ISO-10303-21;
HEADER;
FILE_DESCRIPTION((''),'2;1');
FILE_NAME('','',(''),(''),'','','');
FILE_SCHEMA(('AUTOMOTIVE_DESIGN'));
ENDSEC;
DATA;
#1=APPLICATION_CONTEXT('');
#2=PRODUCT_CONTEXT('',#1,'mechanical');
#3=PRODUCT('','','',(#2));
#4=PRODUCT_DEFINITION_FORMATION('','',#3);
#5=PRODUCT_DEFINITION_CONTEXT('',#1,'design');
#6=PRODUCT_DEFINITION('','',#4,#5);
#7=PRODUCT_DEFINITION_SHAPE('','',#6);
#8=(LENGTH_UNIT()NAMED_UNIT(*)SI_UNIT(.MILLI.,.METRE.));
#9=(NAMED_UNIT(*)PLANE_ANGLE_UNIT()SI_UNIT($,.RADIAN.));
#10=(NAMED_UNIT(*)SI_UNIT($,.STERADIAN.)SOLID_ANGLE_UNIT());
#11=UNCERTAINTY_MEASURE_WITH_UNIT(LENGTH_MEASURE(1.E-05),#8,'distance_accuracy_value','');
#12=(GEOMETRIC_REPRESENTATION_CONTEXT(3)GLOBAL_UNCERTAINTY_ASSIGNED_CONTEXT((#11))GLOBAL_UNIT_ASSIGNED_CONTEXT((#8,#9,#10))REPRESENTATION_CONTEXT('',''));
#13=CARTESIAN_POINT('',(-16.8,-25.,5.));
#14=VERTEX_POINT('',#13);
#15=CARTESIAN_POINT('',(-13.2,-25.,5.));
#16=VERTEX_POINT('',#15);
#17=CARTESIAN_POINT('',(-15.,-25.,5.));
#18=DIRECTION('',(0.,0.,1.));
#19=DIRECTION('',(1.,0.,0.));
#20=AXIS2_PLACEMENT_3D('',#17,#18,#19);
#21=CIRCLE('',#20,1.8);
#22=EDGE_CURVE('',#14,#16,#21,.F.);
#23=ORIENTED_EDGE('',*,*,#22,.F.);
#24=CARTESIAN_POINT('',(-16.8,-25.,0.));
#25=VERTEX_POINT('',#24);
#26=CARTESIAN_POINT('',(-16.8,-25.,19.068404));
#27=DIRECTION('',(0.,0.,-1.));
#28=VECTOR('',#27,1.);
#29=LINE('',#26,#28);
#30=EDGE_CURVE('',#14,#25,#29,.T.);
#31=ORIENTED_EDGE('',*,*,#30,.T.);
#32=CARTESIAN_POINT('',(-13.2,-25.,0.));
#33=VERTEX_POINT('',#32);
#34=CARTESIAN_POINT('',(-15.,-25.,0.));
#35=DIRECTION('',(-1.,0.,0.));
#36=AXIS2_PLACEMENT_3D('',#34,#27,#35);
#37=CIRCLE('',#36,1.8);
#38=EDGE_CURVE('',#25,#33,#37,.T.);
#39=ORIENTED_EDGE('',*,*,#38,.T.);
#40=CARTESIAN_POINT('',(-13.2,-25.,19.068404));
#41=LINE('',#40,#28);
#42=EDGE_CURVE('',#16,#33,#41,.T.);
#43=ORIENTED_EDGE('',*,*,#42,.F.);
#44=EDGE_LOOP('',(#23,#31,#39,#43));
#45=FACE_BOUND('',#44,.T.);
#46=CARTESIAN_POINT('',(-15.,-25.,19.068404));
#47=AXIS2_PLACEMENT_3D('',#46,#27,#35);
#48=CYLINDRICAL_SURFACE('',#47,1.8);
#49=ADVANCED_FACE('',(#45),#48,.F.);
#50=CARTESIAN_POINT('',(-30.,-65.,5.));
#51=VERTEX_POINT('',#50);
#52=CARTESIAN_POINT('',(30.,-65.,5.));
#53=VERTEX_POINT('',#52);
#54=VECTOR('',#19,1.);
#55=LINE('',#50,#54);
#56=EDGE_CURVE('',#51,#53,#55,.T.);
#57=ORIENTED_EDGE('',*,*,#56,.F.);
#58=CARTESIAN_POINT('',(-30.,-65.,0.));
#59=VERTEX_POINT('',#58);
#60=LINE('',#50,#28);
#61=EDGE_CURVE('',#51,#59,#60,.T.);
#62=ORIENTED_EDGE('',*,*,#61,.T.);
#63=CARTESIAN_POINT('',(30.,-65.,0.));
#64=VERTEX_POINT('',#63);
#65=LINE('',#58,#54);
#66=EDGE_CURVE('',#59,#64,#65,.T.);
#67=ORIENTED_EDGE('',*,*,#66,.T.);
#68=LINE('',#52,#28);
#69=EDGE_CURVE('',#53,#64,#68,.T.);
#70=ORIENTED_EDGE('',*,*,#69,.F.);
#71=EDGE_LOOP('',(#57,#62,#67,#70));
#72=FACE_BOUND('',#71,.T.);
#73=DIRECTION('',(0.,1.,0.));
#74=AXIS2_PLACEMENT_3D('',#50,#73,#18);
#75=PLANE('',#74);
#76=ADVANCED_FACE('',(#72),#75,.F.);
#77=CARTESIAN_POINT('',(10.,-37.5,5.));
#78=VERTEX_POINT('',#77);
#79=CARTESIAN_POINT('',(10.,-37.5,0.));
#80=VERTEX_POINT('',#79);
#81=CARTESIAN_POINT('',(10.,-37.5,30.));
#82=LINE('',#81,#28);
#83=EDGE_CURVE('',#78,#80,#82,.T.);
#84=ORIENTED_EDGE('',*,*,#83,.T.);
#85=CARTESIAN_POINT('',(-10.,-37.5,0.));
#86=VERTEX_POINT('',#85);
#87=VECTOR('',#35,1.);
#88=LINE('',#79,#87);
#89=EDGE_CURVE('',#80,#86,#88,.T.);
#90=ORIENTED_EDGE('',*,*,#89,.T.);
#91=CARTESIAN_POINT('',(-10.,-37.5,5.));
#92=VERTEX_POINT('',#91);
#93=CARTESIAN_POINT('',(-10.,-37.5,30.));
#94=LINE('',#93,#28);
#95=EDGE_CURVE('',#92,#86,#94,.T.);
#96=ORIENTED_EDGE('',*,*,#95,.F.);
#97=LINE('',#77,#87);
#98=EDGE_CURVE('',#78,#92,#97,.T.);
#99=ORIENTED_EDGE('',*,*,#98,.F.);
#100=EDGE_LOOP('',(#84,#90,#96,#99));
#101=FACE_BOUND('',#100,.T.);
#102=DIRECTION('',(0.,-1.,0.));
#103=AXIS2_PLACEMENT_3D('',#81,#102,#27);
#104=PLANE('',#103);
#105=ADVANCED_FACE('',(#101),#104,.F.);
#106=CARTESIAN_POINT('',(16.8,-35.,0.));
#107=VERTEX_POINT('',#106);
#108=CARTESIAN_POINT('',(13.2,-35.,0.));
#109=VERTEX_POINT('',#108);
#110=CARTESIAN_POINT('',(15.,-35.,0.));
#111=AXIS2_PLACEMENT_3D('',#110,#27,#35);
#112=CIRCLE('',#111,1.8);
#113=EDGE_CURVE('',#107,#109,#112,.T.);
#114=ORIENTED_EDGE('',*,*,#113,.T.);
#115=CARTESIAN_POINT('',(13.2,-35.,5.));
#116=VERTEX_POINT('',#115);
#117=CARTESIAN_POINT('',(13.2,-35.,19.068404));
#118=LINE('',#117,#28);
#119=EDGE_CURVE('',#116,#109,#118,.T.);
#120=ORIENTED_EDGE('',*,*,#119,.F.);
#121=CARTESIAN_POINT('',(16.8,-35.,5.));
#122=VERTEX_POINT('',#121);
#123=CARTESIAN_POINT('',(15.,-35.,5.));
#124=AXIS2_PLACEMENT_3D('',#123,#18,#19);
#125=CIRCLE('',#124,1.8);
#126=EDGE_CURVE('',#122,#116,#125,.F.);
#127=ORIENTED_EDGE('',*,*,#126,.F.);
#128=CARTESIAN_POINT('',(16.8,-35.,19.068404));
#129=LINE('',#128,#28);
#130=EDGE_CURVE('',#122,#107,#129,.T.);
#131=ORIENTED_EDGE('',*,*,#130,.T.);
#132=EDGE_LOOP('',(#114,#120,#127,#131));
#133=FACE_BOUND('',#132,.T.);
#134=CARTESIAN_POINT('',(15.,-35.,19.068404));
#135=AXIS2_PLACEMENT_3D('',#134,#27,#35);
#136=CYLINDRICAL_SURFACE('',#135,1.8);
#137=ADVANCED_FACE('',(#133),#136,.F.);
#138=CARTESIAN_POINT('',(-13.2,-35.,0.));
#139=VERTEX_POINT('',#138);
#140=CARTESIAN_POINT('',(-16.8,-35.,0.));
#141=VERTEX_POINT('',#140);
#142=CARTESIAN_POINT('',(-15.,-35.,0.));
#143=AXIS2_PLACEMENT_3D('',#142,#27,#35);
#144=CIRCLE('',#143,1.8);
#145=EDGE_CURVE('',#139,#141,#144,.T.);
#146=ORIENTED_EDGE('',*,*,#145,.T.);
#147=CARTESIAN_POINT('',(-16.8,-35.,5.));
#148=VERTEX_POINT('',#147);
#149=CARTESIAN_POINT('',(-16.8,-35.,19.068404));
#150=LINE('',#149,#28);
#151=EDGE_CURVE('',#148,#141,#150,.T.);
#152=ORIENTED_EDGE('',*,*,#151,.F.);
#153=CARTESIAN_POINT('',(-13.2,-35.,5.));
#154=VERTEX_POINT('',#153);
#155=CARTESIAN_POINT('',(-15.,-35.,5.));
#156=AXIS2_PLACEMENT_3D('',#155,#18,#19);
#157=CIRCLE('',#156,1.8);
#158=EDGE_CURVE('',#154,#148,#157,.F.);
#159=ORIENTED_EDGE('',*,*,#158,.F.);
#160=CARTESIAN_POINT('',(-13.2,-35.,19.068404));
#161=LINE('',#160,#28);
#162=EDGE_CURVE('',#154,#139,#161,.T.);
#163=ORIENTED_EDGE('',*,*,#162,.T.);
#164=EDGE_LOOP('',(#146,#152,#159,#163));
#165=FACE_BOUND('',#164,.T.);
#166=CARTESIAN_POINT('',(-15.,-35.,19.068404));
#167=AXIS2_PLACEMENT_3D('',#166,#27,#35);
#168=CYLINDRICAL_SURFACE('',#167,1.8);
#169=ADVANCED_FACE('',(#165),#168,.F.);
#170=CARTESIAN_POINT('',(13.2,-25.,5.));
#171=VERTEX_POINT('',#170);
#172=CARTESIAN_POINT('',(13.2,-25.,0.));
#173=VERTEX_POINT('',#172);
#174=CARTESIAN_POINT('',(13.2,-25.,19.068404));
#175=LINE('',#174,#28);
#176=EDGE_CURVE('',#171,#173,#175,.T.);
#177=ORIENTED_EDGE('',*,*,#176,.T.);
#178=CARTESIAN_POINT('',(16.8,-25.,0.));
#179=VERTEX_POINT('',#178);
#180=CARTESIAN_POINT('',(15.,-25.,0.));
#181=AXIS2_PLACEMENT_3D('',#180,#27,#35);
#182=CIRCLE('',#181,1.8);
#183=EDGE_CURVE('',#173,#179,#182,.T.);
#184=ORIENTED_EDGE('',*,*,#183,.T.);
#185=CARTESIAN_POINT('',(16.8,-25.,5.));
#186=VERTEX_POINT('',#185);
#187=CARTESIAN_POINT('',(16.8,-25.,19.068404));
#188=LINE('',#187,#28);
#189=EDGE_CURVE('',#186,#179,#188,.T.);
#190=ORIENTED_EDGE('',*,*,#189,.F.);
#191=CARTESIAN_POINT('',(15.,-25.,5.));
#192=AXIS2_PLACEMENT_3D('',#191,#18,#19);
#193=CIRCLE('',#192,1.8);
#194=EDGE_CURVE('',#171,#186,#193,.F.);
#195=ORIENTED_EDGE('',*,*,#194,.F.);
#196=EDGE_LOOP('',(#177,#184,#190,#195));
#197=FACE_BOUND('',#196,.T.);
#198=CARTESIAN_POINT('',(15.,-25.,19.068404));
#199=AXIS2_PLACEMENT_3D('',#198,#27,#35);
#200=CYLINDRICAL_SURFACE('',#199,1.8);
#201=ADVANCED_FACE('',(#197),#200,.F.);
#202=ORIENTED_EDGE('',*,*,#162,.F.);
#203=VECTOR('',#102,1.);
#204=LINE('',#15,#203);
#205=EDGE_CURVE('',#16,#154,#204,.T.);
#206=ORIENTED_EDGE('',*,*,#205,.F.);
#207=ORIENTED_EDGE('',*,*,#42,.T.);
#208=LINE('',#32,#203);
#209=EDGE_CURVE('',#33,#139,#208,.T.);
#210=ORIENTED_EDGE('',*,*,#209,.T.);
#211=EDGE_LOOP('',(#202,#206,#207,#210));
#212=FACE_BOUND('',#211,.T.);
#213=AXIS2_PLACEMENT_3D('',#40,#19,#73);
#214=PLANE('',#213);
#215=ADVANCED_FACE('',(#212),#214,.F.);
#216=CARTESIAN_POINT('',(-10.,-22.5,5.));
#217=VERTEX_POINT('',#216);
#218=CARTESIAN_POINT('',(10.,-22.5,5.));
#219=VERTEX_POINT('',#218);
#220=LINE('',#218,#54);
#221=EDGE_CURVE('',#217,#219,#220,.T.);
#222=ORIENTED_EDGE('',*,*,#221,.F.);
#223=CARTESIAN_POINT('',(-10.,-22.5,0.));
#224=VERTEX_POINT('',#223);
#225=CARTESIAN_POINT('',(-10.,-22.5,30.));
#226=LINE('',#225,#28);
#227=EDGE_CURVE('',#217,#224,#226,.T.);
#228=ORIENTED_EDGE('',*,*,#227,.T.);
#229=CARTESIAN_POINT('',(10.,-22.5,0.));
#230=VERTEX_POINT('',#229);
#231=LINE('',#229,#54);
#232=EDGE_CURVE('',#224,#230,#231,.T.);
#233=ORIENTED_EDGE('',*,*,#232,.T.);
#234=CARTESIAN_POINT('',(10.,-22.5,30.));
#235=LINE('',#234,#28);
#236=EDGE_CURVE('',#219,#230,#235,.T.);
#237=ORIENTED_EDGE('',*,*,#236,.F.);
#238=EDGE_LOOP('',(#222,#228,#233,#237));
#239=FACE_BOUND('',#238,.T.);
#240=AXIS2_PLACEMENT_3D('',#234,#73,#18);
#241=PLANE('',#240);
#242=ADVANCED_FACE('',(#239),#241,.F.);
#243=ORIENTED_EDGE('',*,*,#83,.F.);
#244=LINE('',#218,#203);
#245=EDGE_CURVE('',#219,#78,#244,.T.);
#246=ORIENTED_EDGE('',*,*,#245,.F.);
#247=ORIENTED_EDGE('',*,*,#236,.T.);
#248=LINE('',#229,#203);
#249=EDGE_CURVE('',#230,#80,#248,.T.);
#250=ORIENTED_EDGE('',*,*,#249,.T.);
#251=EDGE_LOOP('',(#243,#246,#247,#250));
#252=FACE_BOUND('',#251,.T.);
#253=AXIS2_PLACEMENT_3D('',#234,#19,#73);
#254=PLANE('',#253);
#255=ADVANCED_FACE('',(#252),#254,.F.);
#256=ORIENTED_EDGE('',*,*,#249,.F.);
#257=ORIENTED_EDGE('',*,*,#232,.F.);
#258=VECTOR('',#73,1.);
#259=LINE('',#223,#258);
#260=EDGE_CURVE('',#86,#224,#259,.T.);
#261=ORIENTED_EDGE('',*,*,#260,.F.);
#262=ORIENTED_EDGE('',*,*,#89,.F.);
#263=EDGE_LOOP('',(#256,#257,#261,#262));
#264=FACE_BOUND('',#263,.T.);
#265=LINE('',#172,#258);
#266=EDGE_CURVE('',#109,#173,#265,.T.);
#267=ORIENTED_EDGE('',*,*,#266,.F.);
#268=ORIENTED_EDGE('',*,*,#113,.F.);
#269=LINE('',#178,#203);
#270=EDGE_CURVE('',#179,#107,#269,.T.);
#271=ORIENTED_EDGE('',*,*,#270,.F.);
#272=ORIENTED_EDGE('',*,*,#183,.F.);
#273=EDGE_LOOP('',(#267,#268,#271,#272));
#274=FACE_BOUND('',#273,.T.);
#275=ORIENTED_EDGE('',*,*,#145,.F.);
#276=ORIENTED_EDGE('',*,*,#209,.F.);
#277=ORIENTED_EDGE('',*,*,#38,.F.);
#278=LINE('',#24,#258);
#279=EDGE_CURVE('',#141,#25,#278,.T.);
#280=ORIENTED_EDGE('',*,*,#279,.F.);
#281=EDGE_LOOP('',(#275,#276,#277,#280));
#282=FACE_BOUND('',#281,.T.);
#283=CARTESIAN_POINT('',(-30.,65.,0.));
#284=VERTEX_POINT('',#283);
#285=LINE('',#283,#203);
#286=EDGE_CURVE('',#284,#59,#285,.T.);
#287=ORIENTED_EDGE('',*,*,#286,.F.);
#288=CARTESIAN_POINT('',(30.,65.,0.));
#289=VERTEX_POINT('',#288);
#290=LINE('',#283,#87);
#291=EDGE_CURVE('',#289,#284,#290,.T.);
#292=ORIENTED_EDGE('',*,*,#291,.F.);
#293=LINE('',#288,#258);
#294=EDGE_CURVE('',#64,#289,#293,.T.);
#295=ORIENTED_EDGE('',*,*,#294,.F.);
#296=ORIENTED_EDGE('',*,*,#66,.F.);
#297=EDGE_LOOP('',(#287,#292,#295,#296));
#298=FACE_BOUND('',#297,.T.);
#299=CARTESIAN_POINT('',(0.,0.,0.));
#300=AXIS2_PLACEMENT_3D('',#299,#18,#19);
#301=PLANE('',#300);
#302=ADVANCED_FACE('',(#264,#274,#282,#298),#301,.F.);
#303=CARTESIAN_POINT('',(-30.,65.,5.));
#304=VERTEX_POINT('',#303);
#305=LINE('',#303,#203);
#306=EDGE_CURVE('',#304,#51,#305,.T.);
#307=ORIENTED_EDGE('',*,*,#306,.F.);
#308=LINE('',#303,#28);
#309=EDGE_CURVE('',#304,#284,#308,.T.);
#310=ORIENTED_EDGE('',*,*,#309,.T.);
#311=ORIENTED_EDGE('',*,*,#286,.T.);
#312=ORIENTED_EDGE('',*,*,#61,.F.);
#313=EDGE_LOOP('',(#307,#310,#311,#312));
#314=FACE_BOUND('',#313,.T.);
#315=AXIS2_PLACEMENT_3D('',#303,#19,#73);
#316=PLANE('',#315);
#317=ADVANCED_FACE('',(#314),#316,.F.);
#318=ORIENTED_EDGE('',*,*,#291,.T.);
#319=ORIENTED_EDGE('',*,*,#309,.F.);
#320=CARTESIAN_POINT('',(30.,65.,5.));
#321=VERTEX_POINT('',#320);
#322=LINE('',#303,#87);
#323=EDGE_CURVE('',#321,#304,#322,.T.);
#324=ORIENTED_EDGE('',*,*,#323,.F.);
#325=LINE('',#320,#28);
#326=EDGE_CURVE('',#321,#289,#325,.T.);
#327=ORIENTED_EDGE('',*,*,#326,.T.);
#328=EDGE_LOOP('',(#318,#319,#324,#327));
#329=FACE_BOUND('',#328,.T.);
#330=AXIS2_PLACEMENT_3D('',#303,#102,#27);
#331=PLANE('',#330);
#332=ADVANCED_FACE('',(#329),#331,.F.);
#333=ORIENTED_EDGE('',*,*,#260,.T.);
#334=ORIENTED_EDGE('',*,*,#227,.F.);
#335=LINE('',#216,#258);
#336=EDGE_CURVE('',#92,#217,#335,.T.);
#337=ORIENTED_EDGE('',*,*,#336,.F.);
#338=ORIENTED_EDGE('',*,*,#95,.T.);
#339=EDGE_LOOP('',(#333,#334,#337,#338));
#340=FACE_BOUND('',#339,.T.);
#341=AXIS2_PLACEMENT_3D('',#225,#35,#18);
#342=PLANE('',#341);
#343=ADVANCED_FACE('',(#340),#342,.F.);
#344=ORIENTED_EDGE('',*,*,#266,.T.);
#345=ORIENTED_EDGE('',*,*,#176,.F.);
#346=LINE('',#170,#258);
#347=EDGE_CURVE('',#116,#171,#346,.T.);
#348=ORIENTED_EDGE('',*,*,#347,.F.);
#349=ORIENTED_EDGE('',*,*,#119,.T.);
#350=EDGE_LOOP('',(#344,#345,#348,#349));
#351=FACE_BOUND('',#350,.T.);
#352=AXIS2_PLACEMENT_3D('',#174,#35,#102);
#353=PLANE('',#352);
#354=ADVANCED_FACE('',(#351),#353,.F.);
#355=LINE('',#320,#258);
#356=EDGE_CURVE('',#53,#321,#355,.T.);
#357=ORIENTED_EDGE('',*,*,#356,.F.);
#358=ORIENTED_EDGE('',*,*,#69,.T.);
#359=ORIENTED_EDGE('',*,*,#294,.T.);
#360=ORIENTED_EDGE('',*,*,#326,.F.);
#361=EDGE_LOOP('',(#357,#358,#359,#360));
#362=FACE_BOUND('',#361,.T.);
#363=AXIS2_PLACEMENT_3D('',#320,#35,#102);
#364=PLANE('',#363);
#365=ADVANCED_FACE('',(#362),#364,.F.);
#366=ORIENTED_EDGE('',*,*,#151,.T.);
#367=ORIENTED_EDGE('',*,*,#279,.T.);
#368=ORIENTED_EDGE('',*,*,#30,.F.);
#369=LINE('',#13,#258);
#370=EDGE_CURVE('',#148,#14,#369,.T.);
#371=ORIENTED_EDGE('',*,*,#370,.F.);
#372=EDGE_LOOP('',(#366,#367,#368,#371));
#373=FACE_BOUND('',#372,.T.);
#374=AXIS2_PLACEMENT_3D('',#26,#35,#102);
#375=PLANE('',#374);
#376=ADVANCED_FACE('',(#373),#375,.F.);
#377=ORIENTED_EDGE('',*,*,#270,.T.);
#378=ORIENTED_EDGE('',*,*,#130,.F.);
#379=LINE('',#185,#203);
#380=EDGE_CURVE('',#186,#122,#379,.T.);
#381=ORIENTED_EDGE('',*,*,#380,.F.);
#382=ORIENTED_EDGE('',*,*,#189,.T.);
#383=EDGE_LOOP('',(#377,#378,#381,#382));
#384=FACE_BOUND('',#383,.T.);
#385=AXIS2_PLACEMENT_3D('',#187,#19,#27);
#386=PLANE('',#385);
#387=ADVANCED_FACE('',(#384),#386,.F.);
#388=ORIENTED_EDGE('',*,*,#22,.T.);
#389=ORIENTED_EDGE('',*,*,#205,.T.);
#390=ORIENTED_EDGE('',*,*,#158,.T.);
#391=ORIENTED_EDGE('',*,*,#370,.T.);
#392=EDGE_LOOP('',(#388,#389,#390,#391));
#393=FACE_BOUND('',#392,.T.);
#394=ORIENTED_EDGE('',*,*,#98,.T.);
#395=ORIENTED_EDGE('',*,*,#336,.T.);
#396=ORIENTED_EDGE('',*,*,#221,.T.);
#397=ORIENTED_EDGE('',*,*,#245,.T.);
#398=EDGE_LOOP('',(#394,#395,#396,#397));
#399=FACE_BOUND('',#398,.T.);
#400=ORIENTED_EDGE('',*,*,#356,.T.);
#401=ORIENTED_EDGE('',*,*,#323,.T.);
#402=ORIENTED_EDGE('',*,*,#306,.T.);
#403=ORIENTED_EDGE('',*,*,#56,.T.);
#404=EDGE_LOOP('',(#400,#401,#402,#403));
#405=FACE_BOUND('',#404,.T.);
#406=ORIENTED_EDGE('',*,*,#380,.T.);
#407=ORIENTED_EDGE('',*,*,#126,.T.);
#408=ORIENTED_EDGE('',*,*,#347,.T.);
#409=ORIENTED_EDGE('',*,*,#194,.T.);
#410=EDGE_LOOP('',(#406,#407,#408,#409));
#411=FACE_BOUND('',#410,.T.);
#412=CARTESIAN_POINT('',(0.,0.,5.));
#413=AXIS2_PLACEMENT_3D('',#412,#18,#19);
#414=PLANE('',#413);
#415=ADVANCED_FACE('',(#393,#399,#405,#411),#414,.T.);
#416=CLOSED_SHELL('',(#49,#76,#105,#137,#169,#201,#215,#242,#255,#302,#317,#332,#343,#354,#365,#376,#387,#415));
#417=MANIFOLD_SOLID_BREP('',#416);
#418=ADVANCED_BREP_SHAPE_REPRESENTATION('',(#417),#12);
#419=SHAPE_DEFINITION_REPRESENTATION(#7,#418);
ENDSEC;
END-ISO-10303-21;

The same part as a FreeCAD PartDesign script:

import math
import FreeCAD as App
import Part
import Sketcher

V = App.Vector

doc = App.newDocument("Part")
body = doc.addObject("PartDesign::Body", "Body")

sketch1 = body.newObject("Sketcher::SketchObject", "Sketch")
sketch1.AttachmentSupport = (doc.getObject("XY_Plane"), [""])
sketch1.MapMode = "FlatFace"
sketch1.addGeometry([
    Part.LineSegment(V(-30, 65, 0), V(-30, -65, 0)),
    Part.LineSegment(V(-30, -65, 0), V(30, -65, 0)),
    Part.LineSegment(V(30, -65, 0), V(30, 65, 0)),
    Part.LineSegment(V(30, 65, 0), V(-30, 65, 0)),
], False)
sketch1.addConstraint([
    Sketcher.Constraint("Coincident", 0, 2, 1, 1),
    Sketcher.Constraint("Coincident", 1, 2, 2, 1),
    Sketcher.Constraint("Coincident", 2, 2, 3, 1),
    Sketcher.Constraint("Coincident", 3, 2, 0, 1),
    Sketcher.Constraint("Vertical", 0),
    Sketcher.Constraint("Horizontal", 1),
    Sketcher.Constraint("Vertical", 2),
    Sketcher.Constraint("Horizontal", 3),
    Sketcher.Constraint("Symmetric", 0, 2, 2, 2, -1, 1),
    Sketcher.Constraint("DistanceX", 1, 1, 1, 2, 60.0),
    Sketcher.Constraint("DistanceY", 0, 2, 0, 1, 130.0),
])
pad1 = body.newObject("PartDesign::Pad", "Pad")
pad1.Profile = sketch1
pad1.Length = 5

sketch2 = body.newObject("Sketcher::SketchObject", "Sketch001")
sketch2.AttachmentSupport = (doc.getObject("XY_Plane"), [""])
sketch2.MapMode = "FlatFace"
sketch2.addGeometry([
    Part.LineSegment(V(10, -22.5, 0), V(10, -37.5, 0)),
    Part.LineSegment(V(10, -37.5, 0), V(-10, -37.5, 0)),
    Part.LineSegment(V(-10, -37.5, 0), V(-10, -22.5, 0)),
    Part.LineSegment(V(-10, -22.5, 0), V(10, -22.5, 0)),
], False)
sketch2.addConstraint([
    Sketcher.Constraint("Coincident", 0, 2, 1, 1),
    Sketcher.Constraint("Coincident", 1, 2, 2, 1),
    Sketcher.Constraint("Coincident", 2, 2, 3, 1),
    Sketcher.Constraint("Coincident", 3, 2, 0, 1),
    Sketcher.Constraint("Vertical", 0),
    Sketcher.Constraint("Horizontal", 1),
    Sketcher.Constraint("Vertical", 2),
    Sketcher.Constraint("Horizontal", 3),
    Sketcher.Constraint("DistanceX", 1, 2, 1, 1, 20.0),
    Sketcher.Constraint("DistanceY", 0, 2, 0, 1, 15.0),
    Sketcher.Constraint("DistanceX", -1, 1, 0, 2, 10.0),
    Sketcher.Constraint("DistanceY", 0, 2, -1, 1, 37.5),
])
pocket1 = body.newObject("PartDesign::Pocket", "Pocket")
pocket1.Profile = sketch2
pocket1.Length = 5
pocket1.Reversed = True

sketch3 = body.newObject("Sketcher::SketchObject", "Sketch002")
sketch3.AttachmentSupport = (doc.getObject("XY_Plane"), [""])
sketch3.MapMode = "FlatFace"
sketch3.addGeometry([
    Part.LineSegment(V(-16.8, -35, 0), V(-16.8, -25, 0)),
    Part.ArcOfCircle(Part.Circle(V(-15, -25, 0), V(0, 0, 1), 1.8), math.radians(0), math.radians(180)),
    Part.LineSegment(V(-13.2, -25, 0), V(-13.2, -35, 0)),
    Part.ArcOfCircle(Part.Circle(V(-15, -35, 0), V(0, 0, 1), 1.8), math.radians(180), math.radians(360)),
    Part.LineSegment(V(13.2, -35, 0), V(13.2, -25, 0)),
    Part.ArcOfCircle(Part.Circle(V(15, -25, 0), V(0, 0, 1), 1.8), math.radians(0), math.radians(180)),
    Part.LineSegment(V(16.8, -25, 0), V(16.8, -35, 0)),
    Part.ArcOfCircle(Part.Circle(V(15, -35, 0), V(0, 0, 1), 1.8), math.radians(180), math.radians(360)),
], False)
sketch3.addConstraint([
    Sketcher.Constraint("Tangent", 0, 2, 1, 2),
    Sketcher.Constraint("Tangent", 1, 1, 2, 1),
    Sketcher.Constraint("Tangent", 2, 2, 3, 2),
    Sketcher.Constraint("Tangent", 3, 1, 0, 1),
    Sketcher.Constraint("Tangent", 4, 2, 5, 2),
    Sketcher.Constraint("Tangent", 5, 1, 6, 1),
    Sketcher.Constraint("Tangent", 6, 2, 7, 2),
    Sketcher.Constraint("Tangent", 7, 1, 4, 1),
    Sketcher.Constraint("Vertical", 0),
    Sketcher.Constraint("Vertical", 2),
    Sketcher.Constraint("Vertical", 4),
    Sketcher.Constraint("Vertical", 6),
    Sketcher.Constraint("Equal", 3, 5),
    Sketcher.Constraint("Symmetric", 1, 3, 5, 3, -2),
    Sketcher.Constraint("Horizontal", 3, 3, 7, 3),
    Sketcher.Constraint("Radius", 1, 1.8),
    Sketcher.Constraint("DistanceY", 0, 1, 0, 2, 10.0),
    Sketcher.Constraint("DistanceX", 1, 3, -1, 1, 15.0),
    Sketcher.Constraint("DistanceY", 1, 3, -1, 1, 25.0),
])
pocket2 = body.newObject("PartDesign::Pocket", "Pocket001")
pocket2.Profile = sketch3
pocket2.Length = 5
pocket2.Reversed = True

doc.recompute()
